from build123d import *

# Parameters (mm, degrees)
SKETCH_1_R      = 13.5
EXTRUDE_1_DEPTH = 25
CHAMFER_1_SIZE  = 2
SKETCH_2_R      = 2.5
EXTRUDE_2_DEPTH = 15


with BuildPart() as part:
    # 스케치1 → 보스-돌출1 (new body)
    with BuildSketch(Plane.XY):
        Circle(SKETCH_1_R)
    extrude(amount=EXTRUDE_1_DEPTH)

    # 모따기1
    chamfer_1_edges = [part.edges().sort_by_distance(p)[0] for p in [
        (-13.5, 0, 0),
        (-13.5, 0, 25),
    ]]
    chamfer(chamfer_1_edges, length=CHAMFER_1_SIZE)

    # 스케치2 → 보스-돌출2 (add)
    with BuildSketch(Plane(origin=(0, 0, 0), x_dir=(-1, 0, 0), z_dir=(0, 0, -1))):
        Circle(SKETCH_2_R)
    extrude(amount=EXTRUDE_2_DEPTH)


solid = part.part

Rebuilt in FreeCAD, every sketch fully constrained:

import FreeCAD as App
import Part
import Sketcher
from FreeCAD import Vector


def edges_at(feature, points):
    """Names of the edges that pass closest to the given points."""
    edges = feature.Shape.Edges
    near = lambda p: min(range(len(edges)), key=lambda i: edges[i].distToShape(Part.Vertex(*p))[0])
    return sorted({f"Edge{near(p) + 1}" for p in points})

doc = App.newDocument("Part")
body = doc.addObject("PartDesign::Body", "Body")

# Sketch on XY plane
sketch1 = body.newObject("Sketcher::SketchObject", "Sketch")
sketch1.AttachmentSupport = (doc.getObject("XY_Plane"), [""])
sketch1.MapMode = "FlatFace"
sketch1.addGeometry(Part.Circle(Vector(0, 0, 0), Vector(0, 0, 1), 14), False)
sketch1.addConstraint(Sketcher.Constraint("Coincident", 0, 3, -1, 1))
sketch1.addConstraint(Sketcher.Constraint("Diameter", 0, 27.0))
pad1 = body.newObject("PartDesign::Pad", "Pad")
pad1.Profile = sketch1
pad1.Length = 25
doc.recompute()

chamfer = body.newObject("PartDesign::Chamfer", "Chamfer")
chamfer.Base = (pad1, edges_at(pad1, [(-13.5, 0, 0), (-13.5, 0, 25)]))
chamfer.Size = 2

# Sketch on XY plane
sketch2 = body.newObject("Sketcher::SketchObject", "Sketch001")
sketch2.AttachmentSupport = (doc.getObject("XY_Plane"), [""])
sketch2.MapMode = "FlatFace"
sketch2.addGeometry(Part.Circle(Vector(0, 0, 0), Vector(0, 0, 1), 2.5), False)
sketch2.addConstraint(Sketcher.Constraint("Coincident", 0, 3, -1, 1))
sketch2.addConstraint(Sketcher.Constraint("Diameter", 0, 5.0))
pad2 = body.newObject("PartDesign::Pad", "Pad001")
pad2.Profile = sketch2
pad2.Length = 15
pad2.Reversed = True

doc.recompute()
